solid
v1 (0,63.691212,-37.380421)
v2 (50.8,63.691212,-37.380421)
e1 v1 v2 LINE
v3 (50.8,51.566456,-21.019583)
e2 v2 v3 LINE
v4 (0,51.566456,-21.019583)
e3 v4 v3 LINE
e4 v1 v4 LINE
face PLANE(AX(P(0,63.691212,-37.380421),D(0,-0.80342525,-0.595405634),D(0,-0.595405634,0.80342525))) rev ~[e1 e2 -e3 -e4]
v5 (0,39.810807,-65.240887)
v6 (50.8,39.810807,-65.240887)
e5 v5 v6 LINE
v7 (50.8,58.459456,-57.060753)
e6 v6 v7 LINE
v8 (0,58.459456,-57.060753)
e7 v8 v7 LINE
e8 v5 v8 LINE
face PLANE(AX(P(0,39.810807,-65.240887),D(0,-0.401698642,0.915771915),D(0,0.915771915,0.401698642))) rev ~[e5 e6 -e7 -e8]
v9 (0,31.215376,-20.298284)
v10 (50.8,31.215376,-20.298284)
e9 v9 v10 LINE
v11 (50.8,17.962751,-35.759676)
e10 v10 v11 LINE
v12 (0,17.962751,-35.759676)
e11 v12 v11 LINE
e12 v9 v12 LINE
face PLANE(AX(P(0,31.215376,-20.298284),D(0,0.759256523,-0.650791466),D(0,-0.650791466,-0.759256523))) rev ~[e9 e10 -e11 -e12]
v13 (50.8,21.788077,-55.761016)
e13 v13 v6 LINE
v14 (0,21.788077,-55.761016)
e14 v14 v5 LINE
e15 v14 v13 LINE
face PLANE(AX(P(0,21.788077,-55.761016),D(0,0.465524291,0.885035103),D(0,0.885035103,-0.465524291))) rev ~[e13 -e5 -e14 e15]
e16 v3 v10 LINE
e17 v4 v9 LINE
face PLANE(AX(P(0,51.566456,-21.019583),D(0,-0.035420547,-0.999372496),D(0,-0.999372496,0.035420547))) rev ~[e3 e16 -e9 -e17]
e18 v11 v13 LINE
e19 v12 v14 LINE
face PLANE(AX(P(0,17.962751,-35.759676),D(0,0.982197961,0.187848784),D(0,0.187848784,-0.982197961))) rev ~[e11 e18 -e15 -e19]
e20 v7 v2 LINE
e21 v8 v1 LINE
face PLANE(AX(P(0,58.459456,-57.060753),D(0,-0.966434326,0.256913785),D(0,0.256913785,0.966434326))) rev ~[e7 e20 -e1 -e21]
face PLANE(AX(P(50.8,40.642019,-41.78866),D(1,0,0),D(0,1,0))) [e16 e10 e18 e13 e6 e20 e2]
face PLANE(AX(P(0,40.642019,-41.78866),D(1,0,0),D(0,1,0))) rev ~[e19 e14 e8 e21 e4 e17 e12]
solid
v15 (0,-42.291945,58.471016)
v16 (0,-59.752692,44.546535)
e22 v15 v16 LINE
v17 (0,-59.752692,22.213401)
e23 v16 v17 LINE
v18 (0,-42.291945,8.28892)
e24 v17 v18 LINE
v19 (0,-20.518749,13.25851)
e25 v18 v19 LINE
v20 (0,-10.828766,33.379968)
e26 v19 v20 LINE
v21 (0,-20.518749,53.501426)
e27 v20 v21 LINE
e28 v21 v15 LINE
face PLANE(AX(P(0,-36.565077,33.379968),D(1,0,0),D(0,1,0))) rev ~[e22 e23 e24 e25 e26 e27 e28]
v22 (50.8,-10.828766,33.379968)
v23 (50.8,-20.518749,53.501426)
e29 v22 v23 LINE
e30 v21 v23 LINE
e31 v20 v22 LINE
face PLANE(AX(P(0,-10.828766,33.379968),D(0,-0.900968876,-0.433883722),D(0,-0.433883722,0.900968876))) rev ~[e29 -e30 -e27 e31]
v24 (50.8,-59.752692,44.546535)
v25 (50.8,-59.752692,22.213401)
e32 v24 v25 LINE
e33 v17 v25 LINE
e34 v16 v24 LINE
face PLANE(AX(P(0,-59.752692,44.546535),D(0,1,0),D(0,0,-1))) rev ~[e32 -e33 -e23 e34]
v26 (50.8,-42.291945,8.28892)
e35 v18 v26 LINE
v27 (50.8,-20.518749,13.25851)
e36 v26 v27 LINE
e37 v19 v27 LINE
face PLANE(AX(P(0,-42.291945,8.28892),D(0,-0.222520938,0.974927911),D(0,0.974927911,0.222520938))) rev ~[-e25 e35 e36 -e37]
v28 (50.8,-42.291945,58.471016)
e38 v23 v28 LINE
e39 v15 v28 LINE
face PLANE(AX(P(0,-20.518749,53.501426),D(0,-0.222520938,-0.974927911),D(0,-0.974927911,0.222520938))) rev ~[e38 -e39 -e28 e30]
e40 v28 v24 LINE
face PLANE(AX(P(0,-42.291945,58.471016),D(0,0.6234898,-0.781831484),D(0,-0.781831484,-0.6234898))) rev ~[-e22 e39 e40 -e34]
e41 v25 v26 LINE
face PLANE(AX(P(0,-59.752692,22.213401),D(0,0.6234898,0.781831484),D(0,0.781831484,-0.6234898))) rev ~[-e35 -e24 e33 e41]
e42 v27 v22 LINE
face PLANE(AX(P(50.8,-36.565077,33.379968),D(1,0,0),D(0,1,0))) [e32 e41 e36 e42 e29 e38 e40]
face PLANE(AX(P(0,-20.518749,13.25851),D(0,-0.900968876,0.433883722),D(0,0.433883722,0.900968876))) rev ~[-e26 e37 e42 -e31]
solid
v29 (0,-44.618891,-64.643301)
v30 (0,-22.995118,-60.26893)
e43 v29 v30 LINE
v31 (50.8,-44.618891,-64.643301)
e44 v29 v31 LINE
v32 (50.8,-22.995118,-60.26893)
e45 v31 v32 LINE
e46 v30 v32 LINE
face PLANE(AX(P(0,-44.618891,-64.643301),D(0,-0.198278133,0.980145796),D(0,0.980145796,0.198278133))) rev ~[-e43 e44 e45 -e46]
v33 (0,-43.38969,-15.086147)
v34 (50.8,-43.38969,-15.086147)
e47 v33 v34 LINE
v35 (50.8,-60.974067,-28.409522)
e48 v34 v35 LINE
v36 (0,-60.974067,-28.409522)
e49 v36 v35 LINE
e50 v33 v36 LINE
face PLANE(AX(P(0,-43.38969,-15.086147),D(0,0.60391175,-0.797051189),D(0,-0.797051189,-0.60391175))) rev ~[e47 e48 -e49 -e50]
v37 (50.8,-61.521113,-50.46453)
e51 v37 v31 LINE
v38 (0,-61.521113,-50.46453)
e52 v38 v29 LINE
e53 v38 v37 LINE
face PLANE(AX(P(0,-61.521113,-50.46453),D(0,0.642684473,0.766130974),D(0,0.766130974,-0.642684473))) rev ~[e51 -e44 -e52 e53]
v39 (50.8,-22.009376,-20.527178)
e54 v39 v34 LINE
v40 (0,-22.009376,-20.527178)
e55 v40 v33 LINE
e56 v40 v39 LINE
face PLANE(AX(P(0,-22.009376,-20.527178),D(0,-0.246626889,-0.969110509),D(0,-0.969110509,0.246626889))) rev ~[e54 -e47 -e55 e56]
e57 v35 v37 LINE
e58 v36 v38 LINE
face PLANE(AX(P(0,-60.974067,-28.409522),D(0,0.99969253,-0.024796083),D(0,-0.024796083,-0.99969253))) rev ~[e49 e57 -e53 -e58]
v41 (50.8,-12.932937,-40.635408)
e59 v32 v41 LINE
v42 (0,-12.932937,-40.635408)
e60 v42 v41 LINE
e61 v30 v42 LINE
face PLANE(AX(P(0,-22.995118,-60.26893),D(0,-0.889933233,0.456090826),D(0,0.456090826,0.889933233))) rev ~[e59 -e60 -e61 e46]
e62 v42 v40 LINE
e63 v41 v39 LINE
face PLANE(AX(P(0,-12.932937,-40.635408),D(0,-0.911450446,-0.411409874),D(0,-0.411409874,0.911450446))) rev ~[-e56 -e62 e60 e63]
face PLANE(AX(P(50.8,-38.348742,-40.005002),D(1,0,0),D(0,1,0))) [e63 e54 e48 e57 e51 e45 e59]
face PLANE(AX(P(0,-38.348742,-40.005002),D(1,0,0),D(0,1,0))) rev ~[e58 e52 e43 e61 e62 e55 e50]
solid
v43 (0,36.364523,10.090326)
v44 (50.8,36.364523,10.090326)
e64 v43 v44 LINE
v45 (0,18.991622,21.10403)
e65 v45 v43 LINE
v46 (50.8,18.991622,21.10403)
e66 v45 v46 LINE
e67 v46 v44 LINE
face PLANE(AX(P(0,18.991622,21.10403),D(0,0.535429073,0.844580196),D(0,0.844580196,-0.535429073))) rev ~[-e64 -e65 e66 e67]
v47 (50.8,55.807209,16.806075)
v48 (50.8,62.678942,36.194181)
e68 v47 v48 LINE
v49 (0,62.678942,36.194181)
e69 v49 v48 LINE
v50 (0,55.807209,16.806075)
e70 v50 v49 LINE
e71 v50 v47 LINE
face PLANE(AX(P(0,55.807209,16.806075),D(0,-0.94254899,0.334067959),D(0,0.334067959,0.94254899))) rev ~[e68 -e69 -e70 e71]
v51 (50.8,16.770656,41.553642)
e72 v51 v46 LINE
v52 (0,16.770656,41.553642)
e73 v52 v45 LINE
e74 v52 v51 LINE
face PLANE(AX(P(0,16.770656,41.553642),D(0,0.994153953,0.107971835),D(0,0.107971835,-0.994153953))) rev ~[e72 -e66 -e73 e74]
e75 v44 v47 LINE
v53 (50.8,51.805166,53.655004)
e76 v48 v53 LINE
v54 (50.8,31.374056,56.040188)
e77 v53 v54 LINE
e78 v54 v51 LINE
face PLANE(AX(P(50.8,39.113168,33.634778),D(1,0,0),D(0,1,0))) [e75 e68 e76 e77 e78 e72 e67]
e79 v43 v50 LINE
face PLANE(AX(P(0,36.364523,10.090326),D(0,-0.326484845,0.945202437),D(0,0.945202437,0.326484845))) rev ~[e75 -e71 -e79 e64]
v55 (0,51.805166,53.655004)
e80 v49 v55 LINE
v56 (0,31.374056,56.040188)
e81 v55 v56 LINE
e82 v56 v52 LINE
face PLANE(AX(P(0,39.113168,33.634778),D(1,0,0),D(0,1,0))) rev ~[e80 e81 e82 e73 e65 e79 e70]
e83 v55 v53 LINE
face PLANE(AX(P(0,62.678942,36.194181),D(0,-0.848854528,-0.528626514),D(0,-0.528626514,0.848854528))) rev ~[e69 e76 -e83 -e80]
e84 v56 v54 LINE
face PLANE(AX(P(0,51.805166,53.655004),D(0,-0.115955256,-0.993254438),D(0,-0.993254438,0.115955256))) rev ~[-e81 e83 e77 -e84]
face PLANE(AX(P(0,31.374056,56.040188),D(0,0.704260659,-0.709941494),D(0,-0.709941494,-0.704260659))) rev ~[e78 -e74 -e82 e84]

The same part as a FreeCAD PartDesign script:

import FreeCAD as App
import Part
import Sketcher
Q = App.Units.Quantity


def add_polygon(sketch, points):
    """Adds a closed chain of lines whose ends are joined by coincident constraints."""
    first, n = sketch.GeometryCount, len(points)
    for a, b in zip(points, points[1:] + points[:1]):
        sketch.addGeometry(Part.LineSegment(App.Vector(*a, 0), App.Vector(*b, 0)), False)
    for i in range(n):
        sketch.addConstraint(Sketcher.Constraint("Coincident", first + i, 2, first + (i + 1) % n, 1))

doc = App.newDocument("Part")
body = doc.addObject("PartDesign::Body", "Body")
body.AllowCompound = True

# Sketch on YZ plane
sketch1 = doc.addObject("Sketcher::SketchObject", "Sketch")
body.addObject(sketch1)
sketch1.AttachmentSupport = (doc.YZ_Plane, [""])
sketch1.MapMode = "FlatFace"
add_polygon(sketch1, [(-59.752692, 44.546535), (-59.752692, 22.213401), (-42.291945, 8.28892), (-20.518749, 13.25851), (-10.828766, 33.379968), (-20.518749, 53.501426), (-42.291945, 58.471016)])  # lines 0-6
add_polygon(sketch1, [(-22.995118, -60.26893), (-12.932937, -40.635408), (-22.009376, -20.527178), (-43.38969, -15.086147), (-60.974067, -28.409522), (-61.521113, -50.46453), (-44.618891, -64.643301)])  # lines 7-13
add_polygon(sketch1, [(31.215376, -20.298284), (17.962751, -35.759676), (21.788077, -55.761016), (39.810807, -65.240887), (58.459456, -57.060753), (63.691212, -37.380421), (51.566456, -21.019583)])  # lines 14-20
add_polygon(sketch1, [(55.807209, 16.806075), (62.678942, 36.194181), (51.805166, 53.655004), (31.374056, 56.040188), (16.770656, 41.553642), (18.991622, 21.10403), (36.364523, 10.090326)])  # lines 21-27
sketch1.addConstraint([
    Sketcher.Constraint("Vertical", 0),
    Sketcher.Constraint("DistanceY", 13, 2, 11, 2, Q("0.386 in")),
    Sketcher.Constraint("DistanceY", 8, 2, 0, 2, Q("1.6827 in")),
    Sketcher.Constraint("DistanceY", -1, 1, 0, 2, Q("22.213401 mm")),
    Sketcher.Constraint("DistanceY", 12, 2, -1, 1, Q("64.643301 mm")),
    Sketcher.Constraint("DistanceX", 12, 2, 9, 2, Q("1.229201 mm")),
    Sketcher.Constraint("DistanceX", 2, 2, 14, 2, Q("38.4815 mm")),
    Sketcher.Constraint("DistanceX", 19, 2, 17, 2, Q("6.893 mm")),
    Sketcher.Constraint("DistanceY", 19, 2, 20, 2, Q("0.721299 mm")),
    Sketcher.Constraint("DistanceX", 15, 2, 20, 2, Q("9.427299 mm")),
    Sketcher.Constraint("DistanceY", 18, 2, 21, 2, Q("73.574602 mm")),
    Sketcher.Constraint("DistanceX", 24, 2, 23, 2, Q("14.6034 mm")),
    Sketcher.Constraint("DistanceX", 25, 2, 26, 2, Q("17.372901 mm")),
    Sketcher.Constraint("Distance", 8, Q("22.061792 mm")),
    Sketcher.Constraint("Distance", 9, Q("22.061792 mm")),
    Sketcher.Constraint("Distance", 10, Q("22.061791 mm")),
    Sketcher.Constraint("Distance", 11, Q("22.061791 mm")),
    Sketcher.Constraint("Distance", 12, Q("22.061792 mm")),
    Sketcher.Constraint("Distance", 15, Q("20.363858 mm")),
    Sketcher.Constraint("Distance", 16, Q("20.363859 mm")),
    Sketcher.Constraint("Distance", 18, Q("20.363859 mm")),
    Sketcher.Constraint("Distance", 19, Q("20.363858 mm")),
    Sketcher.Constraint("Distance", 20, Q("20.363858 mm")),
    Sketcher.Constraint("DistanceY", 0, 2, 0, 1, Q("22.333134 mm")),
    Sketcher.Constraint("DistanceY", -1, 1, 1, 2, Q("8.28892 mm")),
    Sketcher.Constraint("DistanceX", 2, 2, -1, 1, Q("20.518749 mm")),
    Sketcher.Constraint("DistanceY", -1, 1, 2, 2, Q("13.25851 mm")),
    Sketcher.Constraint("DistanceX", 4, 2, -1, 1, Q("20.518749 mm")),
    Sketcher.Constraint("DistanceX", 9, 2, -1, 1, Q("43.38969 mm")),
    Sketcher.Constraint("DistanceY", 10, 2, -1, 1, Q("28.409522 mm")),
    Sketcher.Constraint("DistanceY", 11, 2, -1, 1, Q("50.46453 mm")),
    Sketcher.Constraint("DistanceX", 13, 2, -1, 1, Q("22.995118 mm")),
    Sketcher.Constraint("DistanceY", 18, 2, -1, 1, Q("37.380421 mm")),
    Sketcher.Constraint("DistanceX", -1, 1, 25, 2, Q("18.991622 mm")),
    Sketcher.Constraint("DistanceY", -1, 1, 25, 2, Q("21.10403 mm")),
    Sketcher.Constraint("DistanceX", -1, 1, 27, 2, Q("55.807209 mm")),
    Sketcher.Constraint("DistanceX", 1, 2, 3, 2, Q("31.463179 mm")),
    Sketcher.Constraint("DistanceY", 1, 2, 3, 2, Q("25.091048 mm")),
    Sketcher.Constraint("DistanceY", 3, 2, 4, 2, Q("20.121458 mm")),
    Sketcher.Constraint("DistanceY", 4, 2, 5, 2, Q("4.96959 mm")),
    Sketcher.Constraint("DistanceX", 5, 2, 3, 2, Q("31.463179 mm")),
    Sketcher.Constraint("DistanceX", 2, 2, 7, 2, Q("7.585812 mm")),
    Sketcher.Constraint("DistanceX", 7, 2, 3, 2, Q("2.104171 mm")),
    Sketcher.Constraint("DistanceY", 7, 2, 14, 2, Q("4.875732 mm")),
    Sketcher.Constraint("DistanceY", 15, 2, 14, 2, Q("20.00134 mm")),
    Sketcher.Constraint("DistanceX", 15, 2, 16, 2, Q("18.02273 mm")),
    Sketcher.Constraint("DistanceY", 17, 2, 18, 2, Q("19.680332 mm")),
    Sketcher.Constraint("DistanceX", 21, 2, 18, 2, Q("1.01227 mm")),
    Sketcher.Constraint("DistanceX", 19, 2, 22, 2, Q("0.23871 mm")),
    Sketcher.Constraint("DistanceY", 20, 2, 22, 2, Q("73.953288 mm")),
    Sketcher.Constraint("DistanceX", 23, 2, 22, 2, Q("20.43111 mm")),
    Sketcher.Constraint("DistanceY", 3, 2, 23, 2, Q("22.66022 mm")),
    Sketcher.Constraint("DistanceY", 24, 2, 22, 2, Q("12.101362 mm")),
    Sketcher.Constraint("DistanceY", 20, 2, 26, 2, Q("30.38861 mm")),
    Sketcher.Constraint("DistanceY", 26, 2, 27, 2, Q("6.715749 mm")),
    Sketcher.Constraint("Distance", 1, Q("22.333134 mm")),
])
pad1 = doc.addObject("PartDesign::Pad", "Pad")
body.addObject(pad1)
pad1.Profile = sketch1
pad1.Length = Q("2 in")

doc.recompute()
